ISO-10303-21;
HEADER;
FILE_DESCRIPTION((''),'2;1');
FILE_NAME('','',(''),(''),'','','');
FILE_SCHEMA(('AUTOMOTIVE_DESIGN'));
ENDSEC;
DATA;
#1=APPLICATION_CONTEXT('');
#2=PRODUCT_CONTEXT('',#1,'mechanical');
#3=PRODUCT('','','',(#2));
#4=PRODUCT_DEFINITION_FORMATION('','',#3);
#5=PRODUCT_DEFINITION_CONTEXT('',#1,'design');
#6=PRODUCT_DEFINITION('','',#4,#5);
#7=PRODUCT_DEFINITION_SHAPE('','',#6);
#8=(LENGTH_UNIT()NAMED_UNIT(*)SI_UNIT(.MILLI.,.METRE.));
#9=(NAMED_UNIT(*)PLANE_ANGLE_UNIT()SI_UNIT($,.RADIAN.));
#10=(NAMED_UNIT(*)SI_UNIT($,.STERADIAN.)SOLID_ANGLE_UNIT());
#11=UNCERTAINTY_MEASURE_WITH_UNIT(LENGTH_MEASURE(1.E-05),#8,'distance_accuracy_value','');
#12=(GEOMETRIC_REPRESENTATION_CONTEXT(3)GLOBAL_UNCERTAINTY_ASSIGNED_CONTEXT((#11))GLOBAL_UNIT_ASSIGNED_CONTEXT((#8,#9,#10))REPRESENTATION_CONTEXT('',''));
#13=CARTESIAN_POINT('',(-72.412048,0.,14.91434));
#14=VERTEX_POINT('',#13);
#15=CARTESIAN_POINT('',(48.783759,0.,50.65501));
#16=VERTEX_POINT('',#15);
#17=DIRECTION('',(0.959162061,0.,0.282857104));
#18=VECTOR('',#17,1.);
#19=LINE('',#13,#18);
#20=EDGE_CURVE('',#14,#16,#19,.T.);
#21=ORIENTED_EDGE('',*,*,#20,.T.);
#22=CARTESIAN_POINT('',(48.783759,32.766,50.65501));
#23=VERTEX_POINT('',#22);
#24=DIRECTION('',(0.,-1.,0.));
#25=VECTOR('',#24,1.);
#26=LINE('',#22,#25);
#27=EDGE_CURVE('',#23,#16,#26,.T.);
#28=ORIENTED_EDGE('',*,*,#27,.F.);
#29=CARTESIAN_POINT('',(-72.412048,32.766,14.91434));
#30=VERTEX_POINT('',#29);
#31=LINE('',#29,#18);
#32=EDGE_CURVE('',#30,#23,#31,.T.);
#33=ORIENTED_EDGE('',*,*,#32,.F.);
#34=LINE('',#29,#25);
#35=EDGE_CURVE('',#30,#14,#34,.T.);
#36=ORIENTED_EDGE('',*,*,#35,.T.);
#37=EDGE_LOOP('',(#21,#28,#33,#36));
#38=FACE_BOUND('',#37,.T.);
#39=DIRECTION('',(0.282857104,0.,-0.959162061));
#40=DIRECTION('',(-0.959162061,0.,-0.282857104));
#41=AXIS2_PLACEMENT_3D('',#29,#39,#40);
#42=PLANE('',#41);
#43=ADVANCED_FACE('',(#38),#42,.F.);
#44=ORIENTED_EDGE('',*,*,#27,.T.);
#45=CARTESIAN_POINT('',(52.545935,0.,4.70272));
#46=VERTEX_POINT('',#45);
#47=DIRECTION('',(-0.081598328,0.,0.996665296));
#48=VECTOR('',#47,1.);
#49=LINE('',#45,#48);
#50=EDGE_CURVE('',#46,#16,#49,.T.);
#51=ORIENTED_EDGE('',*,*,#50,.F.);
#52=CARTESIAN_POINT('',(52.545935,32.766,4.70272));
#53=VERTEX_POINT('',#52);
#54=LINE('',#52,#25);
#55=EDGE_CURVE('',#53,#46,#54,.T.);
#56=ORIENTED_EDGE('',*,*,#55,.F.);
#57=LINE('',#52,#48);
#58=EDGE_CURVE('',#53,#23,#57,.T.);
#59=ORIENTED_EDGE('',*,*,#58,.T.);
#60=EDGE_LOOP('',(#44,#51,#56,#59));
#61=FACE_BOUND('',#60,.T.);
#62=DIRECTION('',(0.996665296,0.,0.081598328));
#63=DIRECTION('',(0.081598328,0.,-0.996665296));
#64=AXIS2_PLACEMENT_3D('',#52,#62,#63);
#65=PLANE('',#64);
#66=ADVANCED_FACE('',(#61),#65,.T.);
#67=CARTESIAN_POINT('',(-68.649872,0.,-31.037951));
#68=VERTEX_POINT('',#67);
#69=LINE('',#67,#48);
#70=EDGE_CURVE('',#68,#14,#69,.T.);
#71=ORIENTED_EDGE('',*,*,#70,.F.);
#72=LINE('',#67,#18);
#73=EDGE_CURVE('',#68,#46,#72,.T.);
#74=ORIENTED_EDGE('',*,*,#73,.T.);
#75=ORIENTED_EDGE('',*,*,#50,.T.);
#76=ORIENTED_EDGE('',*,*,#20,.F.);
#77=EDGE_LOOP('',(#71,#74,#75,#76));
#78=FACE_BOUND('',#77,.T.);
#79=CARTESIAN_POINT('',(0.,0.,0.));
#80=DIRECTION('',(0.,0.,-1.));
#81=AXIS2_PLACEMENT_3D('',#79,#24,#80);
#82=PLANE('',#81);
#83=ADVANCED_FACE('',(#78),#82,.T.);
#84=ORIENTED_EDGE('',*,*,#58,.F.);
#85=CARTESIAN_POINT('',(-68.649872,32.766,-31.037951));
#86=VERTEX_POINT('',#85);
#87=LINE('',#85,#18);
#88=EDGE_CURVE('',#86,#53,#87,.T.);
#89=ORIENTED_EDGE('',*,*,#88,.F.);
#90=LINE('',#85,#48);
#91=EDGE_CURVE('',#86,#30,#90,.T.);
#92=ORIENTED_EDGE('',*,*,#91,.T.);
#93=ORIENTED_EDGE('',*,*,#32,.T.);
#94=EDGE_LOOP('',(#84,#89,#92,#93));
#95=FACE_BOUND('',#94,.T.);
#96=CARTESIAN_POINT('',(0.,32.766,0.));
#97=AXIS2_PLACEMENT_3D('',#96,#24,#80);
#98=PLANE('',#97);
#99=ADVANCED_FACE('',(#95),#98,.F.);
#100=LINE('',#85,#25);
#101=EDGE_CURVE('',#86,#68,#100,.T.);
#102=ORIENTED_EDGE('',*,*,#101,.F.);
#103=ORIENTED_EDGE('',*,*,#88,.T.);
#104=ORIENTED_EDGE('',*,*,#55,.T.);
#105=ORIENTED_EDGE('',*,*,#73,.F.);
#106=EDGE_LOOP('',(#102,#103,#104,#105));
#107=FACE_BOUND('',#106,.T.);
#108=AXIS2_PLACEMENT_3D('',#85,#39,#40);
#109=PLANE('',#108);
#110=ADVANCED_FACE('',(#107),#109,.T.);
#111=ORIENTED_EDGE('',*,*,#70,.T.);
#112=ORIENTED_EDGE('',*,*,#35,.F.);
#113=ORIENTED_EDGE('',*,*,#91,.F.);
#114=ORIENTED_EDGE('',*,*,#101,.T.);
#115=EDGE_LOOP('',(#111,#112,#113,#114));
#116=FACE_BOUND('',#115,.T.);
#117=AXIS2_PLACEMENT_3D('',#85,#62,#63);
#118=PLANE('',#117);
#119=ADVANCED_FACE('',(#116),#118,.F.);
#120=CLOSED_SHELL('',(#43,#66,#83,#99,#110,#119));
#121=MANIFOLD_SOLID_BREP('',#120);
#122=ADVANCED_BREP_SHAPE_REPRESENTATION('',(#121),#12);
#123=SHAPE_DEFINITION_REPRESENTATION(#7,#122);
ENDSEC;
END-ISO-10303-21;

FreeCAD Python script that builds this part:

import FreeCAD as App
import Part
import Sketcher
from FreeCAD import Vector
Q = App.Units.Quantity


def add_polygon(sketch, points):
    """Adds a closed chain of lines whose ends are joined by coincident constraints."""
    first, n = sketch.GeometryCount, len(points)
    for a, b in zip(points, points[1:] + points[:1]):
        sketch.addGeometry(Part.LineSegment(App.Vector(*a, 0), App.Vector(*b, 0)), False)
    for i in range(n):
        sketch.addConstraint(Sketcher.Constraint("Coincident", first + i, 2, first + (i + 1) % n, 1))

doc = App.newDocument("Part")
body = doc.addObject("PartDesign::Body", "Body")

sketch1 = body.newObject("Sketcher::SketchObject", "Sketch")
sketch1.AttachmentSupport = (doc.getObject("XZ_Plane"), [""])
sketch1.MapMode = "FlatFace"
add_polygon(sketch1, [(-69, -31), (-72, 15), (49, 51), (53, 5)])
sketch1.addConstraint([
    Sketcher.Constraint("Parallel", 0, 2),
    Sketcher.Constraint("Parallel", 1, 3),
    Sketcher.Constraint("Distance", 0, 46.106041),
    Sketcher.Constraint("DistanceX", 0, 2, -1, 1, 72.412048),
    Sketcher.Constraint("DistanceY", -1, 1, 0, 2, 14.91434),
    Sketcher.Constraint("DistanceX", -1, 1, 1, 2, 48.783759),
    Sketcher.Constraint("DistanceY", -1, 1, 1, 2, 50.65501),
    Sketcher.Constraint("DistanceY", -1, 1, 2, 2, 4.70272),
])
pad1 = body.newObject("PartDesign::Pad", "Pad")
pad1.Profile = sketch1
pad1.Length = Q("1.29 in")
pad1.Reversed = True

doc.recompute()
